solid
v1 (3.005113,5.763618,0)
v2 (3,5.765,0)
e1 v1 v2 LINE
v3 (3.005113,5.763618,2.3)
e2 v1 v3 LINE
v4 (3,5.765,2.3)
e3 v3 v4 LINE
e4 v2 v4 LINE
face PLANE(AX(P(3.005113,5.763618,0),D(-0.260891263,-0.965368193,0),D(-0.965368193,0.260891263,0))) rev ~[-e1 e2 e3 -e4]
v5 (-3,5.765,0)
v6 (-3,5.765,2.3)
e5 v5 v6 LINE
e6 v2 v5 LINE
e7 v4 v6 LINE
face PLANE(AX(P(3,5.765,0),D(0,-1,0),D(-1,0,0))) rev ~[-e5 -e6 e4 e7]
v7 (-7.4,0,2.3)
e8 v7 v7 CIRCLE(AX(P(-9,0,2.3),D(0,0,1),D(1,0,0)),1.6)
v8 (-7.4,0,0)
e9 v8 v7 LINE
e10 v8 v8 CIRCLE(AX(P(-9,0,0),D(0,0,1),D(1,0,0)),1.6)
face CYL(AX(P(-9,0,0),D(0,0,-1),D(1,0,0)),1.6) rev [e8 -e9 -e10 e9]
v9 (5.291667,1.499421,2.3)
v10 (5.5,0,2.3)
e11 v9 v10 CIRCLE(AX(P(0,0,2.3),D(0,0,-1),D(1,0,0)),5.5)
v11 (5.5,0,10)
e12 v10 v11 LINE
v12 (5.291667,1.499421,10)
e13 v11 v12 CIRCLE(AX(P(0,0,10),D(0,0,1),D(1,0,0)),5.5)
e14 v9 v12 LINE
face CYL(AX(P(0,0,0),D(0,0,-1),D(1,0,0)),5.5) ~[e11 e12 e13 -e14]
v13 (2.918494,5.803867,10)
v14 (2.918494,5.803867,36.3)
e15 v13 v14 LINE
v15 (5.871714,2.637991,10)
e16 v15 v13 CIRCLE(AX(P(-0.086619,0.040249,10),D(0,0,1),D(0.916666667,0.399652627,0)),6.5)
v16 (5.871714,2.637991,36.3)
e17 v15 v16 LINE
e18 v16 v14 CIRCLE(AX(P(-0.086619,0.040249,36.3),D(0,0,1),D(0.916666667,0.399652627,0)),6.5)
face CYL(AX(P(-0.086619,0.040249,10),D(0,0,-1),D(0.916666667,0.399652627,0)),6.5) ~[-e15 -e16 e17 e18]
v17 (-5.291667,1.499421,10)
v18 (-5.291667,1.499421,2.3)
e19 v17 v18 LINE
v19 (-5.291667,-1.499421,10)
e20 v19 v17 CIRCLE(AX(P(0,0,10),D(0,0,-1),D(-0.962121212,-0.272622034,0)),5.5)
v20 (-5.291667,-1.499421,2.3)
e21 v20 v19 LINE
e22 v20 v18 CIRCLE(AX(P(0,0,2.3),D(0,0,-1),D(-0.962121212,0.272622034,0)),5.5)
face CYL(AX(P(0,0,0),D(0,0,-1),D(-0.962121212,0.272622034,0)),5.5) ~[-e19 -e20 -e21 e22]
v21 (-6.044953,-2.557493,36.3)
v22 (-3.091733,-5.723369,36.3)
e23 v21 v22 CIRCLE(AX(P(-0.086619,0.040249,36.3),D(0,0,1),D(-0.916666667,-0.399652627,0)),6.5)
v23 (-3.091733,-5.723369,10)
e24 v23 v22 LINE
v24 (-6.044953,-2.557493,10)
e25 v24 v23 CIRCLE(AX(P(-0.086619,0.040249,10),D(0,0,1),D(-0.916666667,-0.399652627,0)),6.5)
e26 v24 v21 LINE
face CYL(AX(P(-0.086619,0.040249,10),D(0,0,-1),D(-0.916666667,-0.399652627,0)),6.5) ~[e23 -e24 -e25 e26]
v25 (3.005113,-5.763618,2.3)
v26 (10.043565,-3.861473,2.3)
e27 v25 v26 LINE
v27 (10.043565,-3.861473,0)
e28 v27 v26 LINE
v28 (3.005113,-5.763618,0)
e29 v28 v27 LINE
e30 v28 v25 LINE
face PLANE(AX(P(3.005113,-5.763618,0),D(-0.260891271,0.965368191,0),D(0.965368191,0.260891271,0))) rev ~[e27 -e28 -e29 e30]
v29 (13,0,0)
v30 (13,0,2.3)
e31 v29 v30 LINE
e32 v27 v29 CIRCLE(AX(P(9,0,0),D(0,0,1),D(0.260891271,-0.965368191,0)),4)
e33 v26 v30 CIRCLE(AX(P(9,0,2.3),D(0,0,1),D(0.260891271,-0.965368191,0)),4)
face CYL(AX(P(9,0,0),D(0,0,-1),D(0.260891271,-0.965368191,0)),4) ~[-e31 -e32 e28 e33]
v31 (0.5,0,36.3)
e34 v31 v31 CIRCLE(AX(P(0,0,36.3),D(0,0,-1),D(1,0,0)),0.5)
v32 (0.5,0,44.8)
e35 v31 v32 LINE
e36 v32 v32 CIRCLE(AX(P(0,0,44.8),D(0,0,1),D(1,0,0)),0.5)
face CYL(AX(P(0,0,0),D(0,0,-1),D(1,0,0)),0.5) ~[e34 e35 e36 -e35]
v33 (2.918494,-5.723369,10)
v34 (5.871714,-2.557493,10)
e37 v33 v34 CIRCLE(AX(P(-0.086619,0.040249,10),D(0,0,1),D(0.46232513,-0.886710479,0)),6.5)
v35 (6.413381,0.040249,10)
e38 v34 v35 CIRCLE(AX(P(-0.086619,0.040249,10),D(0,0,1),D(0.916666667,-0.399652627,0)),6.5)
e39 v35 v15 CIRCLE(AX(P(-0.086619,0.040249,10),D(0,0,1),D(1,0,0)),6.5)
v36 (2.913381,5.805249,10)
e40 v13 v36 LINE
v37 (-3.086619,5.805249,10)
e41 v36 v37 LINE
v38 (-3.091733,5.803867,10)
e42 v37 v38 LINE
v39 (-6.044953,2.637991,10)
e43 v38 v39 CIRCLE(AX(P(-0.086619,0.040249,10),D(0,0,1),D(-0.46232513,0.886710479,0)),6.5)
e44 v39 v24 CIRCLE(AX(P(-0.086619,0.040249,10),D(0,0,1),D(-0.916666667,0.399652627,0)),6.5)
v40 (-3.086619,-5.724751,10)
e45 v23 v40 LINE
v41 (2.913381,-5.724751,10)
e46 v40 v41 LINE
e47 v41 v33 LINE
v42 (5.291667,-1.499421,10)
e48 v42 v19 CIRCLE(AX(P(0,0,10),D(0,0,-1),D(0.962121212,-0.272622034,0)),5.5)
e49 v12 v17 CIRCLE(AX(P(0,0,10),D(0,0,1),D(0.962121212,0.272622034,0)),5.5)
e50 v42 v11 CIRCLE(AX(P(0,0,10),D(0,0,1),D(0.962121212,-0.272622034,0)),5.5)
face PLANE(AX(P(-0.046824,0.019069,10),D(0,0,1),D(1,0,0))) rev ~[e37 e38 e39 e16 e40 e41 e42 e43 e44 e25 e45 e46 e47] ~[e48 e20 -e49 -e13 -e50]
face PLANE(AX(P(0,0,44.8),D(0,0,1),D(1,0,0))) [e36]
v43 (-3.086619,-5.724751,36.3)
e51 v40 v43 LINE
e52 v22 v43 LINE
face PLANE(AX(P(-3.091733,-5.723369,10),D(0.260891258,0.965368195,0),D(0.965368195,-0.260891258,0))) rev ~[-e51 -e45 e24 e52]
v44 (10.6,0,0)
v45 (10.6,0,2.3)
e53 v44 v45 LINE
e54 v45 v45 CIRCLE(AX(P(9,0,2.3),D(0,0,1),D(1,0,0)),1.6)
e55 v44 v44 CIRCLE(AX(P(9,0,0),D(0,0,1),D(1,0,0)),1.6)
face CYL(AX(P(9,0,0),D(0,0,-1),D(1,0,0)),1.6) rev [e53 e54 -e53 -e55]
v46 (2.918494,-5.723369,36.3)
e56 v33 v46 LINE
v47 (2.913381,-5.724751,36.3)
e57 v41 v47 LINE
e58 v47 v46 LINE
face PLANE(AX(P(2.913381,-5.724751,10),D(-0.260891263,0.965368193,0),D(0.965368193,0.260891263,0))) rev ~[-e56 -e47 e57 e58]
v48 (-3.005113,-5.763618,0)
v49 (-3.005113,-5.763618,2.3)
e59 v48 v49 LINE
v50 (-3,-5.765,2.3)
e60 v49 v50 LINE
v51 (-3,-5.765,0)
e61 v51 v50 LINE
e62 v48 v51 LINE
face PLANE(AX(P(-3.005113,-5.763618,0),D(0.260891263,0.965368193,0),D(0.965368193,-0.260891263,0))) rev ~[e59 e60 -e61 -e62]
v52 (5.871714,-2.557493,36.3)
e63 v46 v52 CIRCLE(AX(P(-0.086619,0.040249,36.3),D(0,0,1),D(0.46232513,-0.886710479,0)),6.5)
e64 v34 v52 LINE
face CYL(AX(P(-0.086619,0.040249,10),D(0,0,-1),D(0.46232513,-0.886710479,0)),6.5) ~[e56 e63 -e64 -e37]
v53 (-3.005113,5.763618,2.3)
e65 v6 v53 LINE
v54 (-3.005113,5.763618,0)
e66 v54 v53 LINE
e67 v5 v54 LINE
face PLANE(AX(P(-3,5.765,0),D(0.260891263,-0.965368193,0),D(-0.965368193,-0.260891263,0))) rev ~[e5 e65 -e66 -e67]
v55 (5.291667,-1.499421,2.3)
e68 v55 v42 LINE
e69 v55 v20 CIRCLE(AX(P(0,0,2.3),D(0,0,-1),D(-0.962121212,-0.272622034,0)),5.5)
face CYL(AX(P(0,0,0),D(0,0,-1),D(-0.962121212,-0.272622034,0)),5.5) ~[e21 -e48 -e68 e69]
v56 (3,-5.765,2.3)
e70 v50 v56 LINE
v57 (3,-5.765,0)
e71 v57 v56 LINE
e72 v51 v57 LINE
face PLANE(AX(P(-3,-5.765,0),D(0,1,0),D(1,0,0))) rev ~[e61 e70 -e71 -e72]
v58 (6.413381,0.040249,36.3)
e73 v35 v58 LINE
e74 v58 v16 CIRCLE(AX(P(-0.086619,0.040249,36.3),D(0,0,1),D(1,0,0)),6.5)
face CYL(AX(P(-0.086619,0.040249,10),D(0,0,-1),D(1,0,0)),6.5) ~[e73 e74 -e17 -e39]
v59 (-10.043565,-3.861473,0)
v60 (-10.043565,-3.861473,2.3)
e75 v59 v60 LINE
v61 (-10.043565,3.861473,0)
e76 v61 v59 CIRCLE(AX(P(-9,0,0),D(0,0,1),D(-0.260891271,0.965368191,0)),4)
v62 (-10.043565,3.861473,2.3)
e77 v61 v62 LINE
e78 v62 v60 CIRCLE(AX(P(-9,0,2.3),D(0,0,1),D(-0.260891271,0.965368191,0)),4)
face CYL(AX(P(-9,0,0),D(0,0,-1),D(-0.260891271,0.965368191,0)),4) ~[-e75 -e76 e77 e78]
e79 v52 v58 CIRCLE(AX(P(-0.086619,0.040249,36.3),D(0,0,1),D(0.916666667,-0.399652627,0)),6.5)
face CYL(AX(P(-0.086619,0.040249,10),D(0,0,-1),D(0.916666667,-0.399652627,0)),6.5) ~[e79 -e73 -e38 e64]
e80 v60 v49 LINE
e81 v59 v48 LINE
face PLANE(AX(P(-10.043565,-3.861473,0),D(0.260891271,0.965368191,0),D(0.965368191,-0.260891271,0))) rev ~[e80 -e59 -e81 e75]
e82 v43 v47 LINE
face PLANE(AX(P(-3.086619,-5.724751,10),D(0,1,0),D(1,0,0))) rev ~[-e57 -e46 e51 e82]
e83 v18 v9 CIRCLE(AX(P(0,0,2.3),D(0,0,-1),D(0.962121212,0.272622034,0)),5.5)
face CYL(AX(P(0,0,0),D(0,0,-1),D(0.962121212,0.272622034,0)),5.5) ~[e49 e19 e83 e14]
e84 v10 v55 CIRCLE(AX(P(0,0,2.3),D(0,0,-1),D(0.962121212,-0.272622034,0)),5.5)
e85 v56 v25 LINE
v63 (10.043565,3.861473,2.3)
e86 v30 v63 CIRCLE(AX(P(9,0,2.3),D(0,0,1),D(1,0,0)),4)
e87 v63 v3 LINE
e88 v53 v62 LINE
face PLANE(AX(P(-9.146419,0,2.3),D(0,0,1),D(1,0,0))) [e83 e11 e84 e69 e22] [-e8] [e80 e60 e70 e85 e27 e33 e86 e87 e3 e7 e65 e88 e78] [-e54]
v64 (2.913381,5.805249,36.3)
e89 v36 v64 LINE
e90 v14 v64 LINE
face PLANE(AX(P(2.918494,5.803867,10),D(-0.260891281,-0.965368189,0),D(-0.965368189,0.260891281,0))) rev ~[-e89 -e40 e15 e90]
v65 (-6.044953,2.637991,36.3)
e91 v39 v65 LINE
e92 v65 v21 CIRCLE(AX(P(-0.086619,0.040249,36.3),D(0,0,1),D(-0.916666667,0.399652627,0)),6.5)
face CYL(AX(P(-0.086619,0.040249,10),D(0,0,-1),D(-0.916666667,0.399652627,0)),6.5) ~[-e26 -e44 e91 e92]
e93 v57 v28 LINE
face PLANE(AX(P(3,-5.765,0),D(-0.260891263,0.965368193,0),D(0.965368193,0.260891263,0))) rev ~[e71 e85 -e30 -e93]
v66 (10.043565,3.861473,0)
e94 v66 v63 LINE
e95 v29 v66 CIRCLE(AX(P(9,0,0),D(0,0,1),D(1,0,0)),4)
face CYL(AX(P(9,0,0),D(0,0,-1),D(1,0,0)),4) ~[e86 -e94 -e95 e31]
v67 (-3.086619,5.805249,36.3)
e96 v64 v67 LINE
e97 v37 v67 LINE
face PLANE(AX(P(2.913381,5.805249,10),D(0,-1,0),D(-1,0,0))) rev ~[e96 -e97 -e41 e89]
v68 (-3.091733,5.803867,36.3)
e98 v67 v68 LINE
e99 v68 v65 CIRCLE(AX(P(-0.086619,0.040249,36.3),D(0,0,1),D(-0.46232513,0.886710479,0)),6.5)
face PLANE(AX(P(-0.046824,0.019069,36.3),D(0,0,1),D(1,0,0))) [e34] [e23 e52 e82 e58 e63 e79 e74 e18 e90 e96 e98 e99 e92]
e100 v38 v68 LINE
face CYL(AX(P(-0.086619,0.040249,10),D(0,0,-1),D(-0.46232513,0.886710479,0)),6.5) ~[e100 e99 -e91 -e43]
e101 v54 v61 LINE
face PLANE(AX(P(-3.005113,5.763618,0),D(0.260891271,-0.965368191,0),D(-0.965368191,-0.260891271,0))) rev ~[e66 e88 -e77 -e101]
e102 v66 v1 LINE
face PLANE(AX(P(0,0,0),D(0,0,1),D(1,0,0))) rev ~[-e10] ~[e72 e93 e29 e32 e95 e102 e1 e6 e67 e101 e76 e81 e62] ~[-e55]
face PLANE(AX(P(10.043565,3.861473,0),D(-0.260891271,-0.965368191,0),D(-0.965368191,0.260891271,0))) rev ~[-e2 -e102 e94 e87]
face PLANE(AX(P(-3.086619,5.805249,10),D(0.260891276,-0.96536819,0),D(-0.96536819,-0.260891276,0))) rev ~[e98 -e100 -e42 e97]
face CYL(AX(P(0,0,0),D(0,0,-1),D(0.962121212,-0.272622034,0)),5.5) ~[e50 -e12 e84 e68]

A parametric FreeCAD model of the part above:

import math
import FreeCAD as App
import Part
import Sketcher

V = App.Vector
Q = App.Units.Quantity

doc = App.newDocument("Part")
body = doc.addObject("PartDesign::Body", "Body")

# Sketch on XY plane
sketch1 = body.newObject("Sketcher::SketchObject", "Sketch")
sketch1.AttachmentSupport = (doc.getObject("XY_Plane"), [""])
sketch1.MapMode = "FlatFace"
sketch1.addGeometry([
    Part.LineSegment(V(-3.005, 5.764, 0), V(-10.044, 3.861, 0)),  # 0
    Part.ArcOfCircle(Part.Circle(V(-9, 0, 0), V(0, 0, 1), 4), math.radians(105), math.radians(255)),  # 1
    Part.LineSegment(V(-10.044, -3.861, 0), V(-3.005, -5.764, 0)),  # 2
    Part.LineSegment(V(-3.005, -5.764, 0), V(-3, -5.765, 0)),  # 3
    Part.LineSegment(V(-3, -5.765, 0), V(3, -5.765, 0)),  # 4
    Part.LineSegment(V(3, -5.765, 0), V(3.005, -5.764, 0)),  # 5
    Part.LineSegment(V(3.005, -5.764, 0), V(10.044, -3.861, 0)),  # 6
    Part.ArcOfCircle(Part.Circle(V(9, 0, 0), V(0, 0, 1), 4), math.radians(-75), math.radians(0)),  # 7
    Part.ArcOfCircle(Part.Circle(V(9, 0, 0), V(0, 0, 1), 4), math.radians(0), math.radians(75)),  # 8
    Part.LineSegment(V(10.044, 3.861, 0), V(3.005, 5.764, 0)),  # 9
    Part.LineSegment(V(3.005, 5.764, 0), V(3, 5.765, 0)),  # 10
    Part.LineSegment(V(3, 5.765, 0), V(-3, 5.765, 0)),  # 11
    Part.LineSegment(V(-3, 5.765, 0), V(-3.005, 5.764, 0)),  # 12
    Part.Circle(V(-9, 0, 0), V(0, 0, 1), 1.6),  # 13
    Part.Circle(V(0, 0, 0), V(0, 0, 1), 0.5),  # 14
    Part.Circle(V(9, 0, 0), V(0, 0, 1), 1.6),  # 15
], False)
sketch1.addConstraint([
    Sketcher.Constraint("Tangent", 0, 2, 1, 1),
    Sketcher.Constraint("Tangent", 1, 2, 2, 1),
    Sketcher.Constraint("Coincident", 2, 2, 3, 1),
    Sketcher.Constraint("Coincident", 3, 2, 4, 1),
    Sketcher.Constraint("Coincident", 4, 2, 5, 1),
    Sketcher.Constraint("Coincident", 5, 2, 6, 1),
    Sketcher.Constraint("Tangent", 6, 2, 7, 1),
    Sketcher.Constraint("Tangent", 7, 2, 8, 1),
    Sketcher.Constraint("Tangent", 8, 2, 9, 1),
    Sketcher.Constraint("Coincident", 9, 2, 10, 1),
    Sketcher.Constraint("Coincident", 10, 2, 11, 1),
    Sketcher.Constraint("Coincident", 11, 2, 12, 1),
    Sketcher.Constraint("Coincident", 12, 2, 0, 1),
    Sketcher.Constraint("Horizontal", 4),
    Sketcher.Constraint("Horizontal", 11),
    Sketcher.Constraint("Coincident", 14, 3, -1, 1),
    Sketcher.Constraint("Coincident", 13, 3, 1, 3),
    Sketcher.Constraint("Coincident", 15, 3, 7, 3),
    Sketcher.Constraint("Equal", 1, 7),
    Sketcher.Constraint("Equal", 7, 8),
    Sketcher.Constraint("Equal", 13, 15),
    Sketcher.Constraint("Symmetric", 1, 3, 7, 3, -1, 1),
    Sketcher.Constraint("Symmetric", 2, 2, 9, 2, -1, 1),
    Sketcher.Constraint("Symmetric", 3, 2, 10, 2, -1, 1),
    Sketcher.Constraint("Symmetric", 5, 2, 12, 2, -1, 1),
    Sketcher.Constraint("Symmetric", 2, 2, 5, 2, -2),
    Sketcher.Constraint("PointOnObject", 1, 3, -1),
    Sketcher.Constraint("PointOnObject", 7, 2, -1),
    Sketcher.Constraint("Parallel", 2, 3),
    Sketcher.Constraint("Parallel", 0, 5),
    Sketcher.Constraint("Parallel", 6, 12),
    Sketcher.Constraint("Diameter", 14, Q("1 mm")),
    Sketcher.Constraint("Radius", 1, Q("4 mm")),
    Sketcher.Constraint("Diameter", 13, Q("3.2 mm")),
    Sketcher.Constraint("DistanceX", 4, 1, 4, 2, Q("6 mm")),
    Sketcher.Constraint("DistanceX", 1, 3, -1, 1, Q("9 mm")),
    Sketcher.Constraint("DistanceY", 3, 2, -1, 1, Q("5.765 mm")),
    Sketcher.Constraint("Distance", 0, Q("7.290951 mm")),
])
pad1 = body.newObject("PartDesign::Pad", "Pad")
pad1.Profile = sketch1
pad1.Length = 2.3

# Sketch on XY plane
sketch2 = body.newObject("Sketcher::SketchObject", "Sketch001")
sketch2.AttachmentSupport = (doc.getObject("XY_Plane"), [""])
sketch2.MapMode = "FlatFace"
sketch2.addGeometry([
    Part.ArcOfCircle(Part.Circle(V(0, 0, 0), V(0, 0, 1), 5.5), math.radians(16), math.radians(164)),  # 0
    Part.ArcOfCircle(Part.Circle(V(0, 0, 0), V(0, 0, 1), 5.5), math.radians(164), math.radians(196)),  # 1
    Part.ArcOfCircle(Part.Circle(V(0, 0, 0), V(0, 0, 1), 5.5), math.radians(-164), math.radians(-16)),  # 2
    Part.ArcOfCircle(Part.Circle(V(0, 0, 0), V(0, 0, 1), 5.5), math.radians(-15.82), math.radians(0)),  # 3
    Part.ArcOfCircle(Part.Circle(V(0, 0, 0), V(0, 0, 1), 5.5), math.radians(0), math.radians(15.82)),  # 4
], False)
sketch2.addConstraint([
    Sketcher.Constraint("Tangent", 0, 2, 1, 1),
    Sketcher.Constraint("Tangent", 1, 2, 2, 1),
    Sketcher.Constraint("Tangent", 2, 2, 3, 1),
    Sketcher.Constraint("Tangent", 3, 2, 4, 1),
    Sketcher.Constraint("Tangent", 4, 2, 0, 1),
    Sketcher.Constraint("Coincident", 0, 3, -1, 1),
    Sketcher.Constraint("Coincident", 2, 3, -1, 1),
    Sketcher.Constraint("PointOnObject", 3, 2, -1),
    Sketcher.Constraint("Horizontal", 1, 2, 2, 2),
    Sketcher.Constraint("Horizontal", 0, 2, 4, 2),
    Sketcher.Constraint("Vertical", 0, 2, 1, 2),
    Sketcher.Constraint("Radius", 0, Q("5.5 mm")),
    Sketcher.Constraint("DistanceY", -1, 1, 0, 2, Q("1.499421 mm")),
])
pad2 = body.newObject("PartDesign::Pad", "Pad001")
pad2.Profile = sketch2
pad2.Length = 10

# Sketch on XY plane
sketch3 = body.newObject("Sketcher::SketchObject", "Sketch002")
sketch3.AttachmentSupport = (doc.getObject("XY_Plane"), [""])
sketch3.MapMode = "FlatFace"
sketch3.AttachmentOffset = App.Placement(V(0, 0, 10), App.Rotation())
sketch3.addGeometry([
    Part.ArcOfCircle(Part.Circle(V(-0.087, 0.04, 0), V(0, 0, 1), 6.5), math.radians(24), math.radians(62)),  # 0
    Part.LineSegment(V(2.918, 5.804, 0), V(2.913, 5.805, 0)),  # 1
    Part.LineSegment(V(2.913, 5.805, 0), V(-3.087, 5.805, 0)),  # 2
    Part.LineSegment(V(-3.087, 5.805, 0), V(-3.092, 5.804, 0)),  # 3
    Part.ArcOfCircle(Part.Circle(V(-0.087, 0.04, 0), V(0, 0, 1), 6.5), math.radians(118), math.radians(156)),  # 4
    Part.ArcOfCircle(Part.Circle(V(-0.087, 0.04, 0), V(0, 0, 1), 6.5), math.radians(156), math.radians(204)),  # 5
    Part.ArcOfCircle(Part.Circle(V(-0.087, 0.04, 0), V(0, 0, 1), 6.5), math.radians(-156), math.radians(-118)),  # 6
    Part.LineSegment(V(-3.092, -5.723, 0), V(-3.087, -5.725, 0)),  # 7
    Part.LineSegment(V(-3.087, -5.725, 0), V(2.913, -5.725, 0)),  # 8
    Part.LineSegment(V(2.913, -5.725, 0), V(2.918, -5.723, 0)),  # 9
    Part.ArcOfCircle(Part.Circle(V(-0.087, 0.04, 0), V(0, 0, 1), 6.5), math.radians(-62), math.radians(-24)),  # 10
    Part.ArcOfCircle(Part.Circle(V(-0.087, 0.04, 0), V(0, 0, 1), 6.5), math.radians(-24), math.radians(0)),  # 11
    Part.ArcOfCircle(Part.Circle(V(-0.087, 0.04, 0), V(0, 0, 1), 6.5), math.radians(0), math.radians(24)),  # 12
], False)
sketch3.addConstraint([
    Sketcher.Constraint("Coincident", 0, 2, 1, 1),
    Sketcher.Constraint("Coincident", 1, 2, 2, 1),
    Sketcher.Constraint("Coincident", 2, 2, 3, 1),
    Sketcher.Constraint("Coincident", 3, 2, 4, 1),
    Sketcher.Constraint("Tangent", 4, 2, 5, 1),
    Sketcher.Constraint("Tangent", 5, 2, 6, 1),
    Sketcher.Constraint("Coincident", 6, 2, 7, 1),
    Sketcher.Constraint("Coincident", 7, 2, 8, 1),
    Sketcher.Constraint("Coincident", 8, 2, 9, 1),
    Sketcher.Constraint("Coincident", 9, 2, 10, 1),
    Sketcher.Constraint("Tangent", 10, 2, 11, 1),
    Sketcher.Constraint("Tangent", 11, 2, 12, 1),
    Sketcher.Constraint("Tangent", 12, 2, 0, 1),
    Sketcher.Constraint("Horizontal", 2),
    Sketcher.Constraint("Horizontal", 8),
    Sketcher.Constraint("Coincident", 4, 3, 0, 3),
    Sketcher.Constraint("Coincident", 6, 3, 0, 3),
    Sketcher.Constraint("Coincident", 10, 3, 0, 3),
    Sketcher.Constraint("Equal", 0, 4),
    Sketcher.Constraint("Equal", 6, 10),
    Sketcher.Constraint("Parallel", 1, 7),
    Sketcher.Constraint("Parallel", 3, 9),
    Sketcher.Constraint("Horizontal", 0, 2, 3, 2),
    Sketcher.Constraint("Horizontal", 6, 2, 9, 2),
    Sketcher.Constraint("Horizontal", 5, 2, 10, 2),
    Sketcher.Constraint("Horizontal", 12, 3, 11, 2),
    Sketcher.Constraint("Horizontal", 4, 2, 12, 2),
    Sketcher.Constraint("Vertical", 4, 2, 5, 2),
    Sketcher.Constraint("Vertical", 3, 2, 6, 2),
    Sketcher.Constraint("Vertical", 2, 2, 7, 2),
    Sketcher.Constraint("Vertical", 1, 2, 8, 2),
    Sketcher.Constraint("Radius", 0, Q("6.5 mm")),
    Sketcher.Constraint("DistanceX", 2, 2, 2, 1, Q("6 mm")),
    Sketcher.Constraint("DistanceY", 5, 3, 1, 2, Q("5.765 mm")),
    Sketcher.Constraint("DistanceX", 0, 3, -1, 1, Q("0.086619 mm")),
    Sketcher.Constraint("DistanceY", -1, 1, 0, 3, Q("0.040249 mm")),
    Sketcher.Constraint("DistanceY", -1, 1, 4, 2, Q("2.637991 mm")),
    Sketcher.Constraint("DistanceY", 6, 2, -1, 1, Q("5.723369 mm")),
])
pad3 = body.newObject("PartDesign::Pad", "Pad002")
pad3.Profile = sketch3
pad3.Length = 26.3

# Sketch on XY plane
sketch4 = body.newObject("Sketcher::SketchObject", "Sketch003")
sketch4.AttachmentSupport = (doc.getObject("XY_Plane"), [""])
sketch4.MapMode = "FlatFace"
sketch4.addGeometry(Part.Circle(V(0, 0, 0), V(0, 0, 1), 0.5), False)
sketch4.addConstraint([
    Sketcher.Constraint("Coincident", 0, 3, -1, 1),
    Sketcher.Constraint("Diameter", 0, Q("1 mm")),
])
pad4 = body.newObject("PartDesign::Pad", "Pad003")
pad4.Profile = sketch4
pad4.Length = 44.8

# Sketch on XY plane
sketch5 = body.newObject("Sketcher::SketchObject", "Sketch004")
sketch5.AttachmentSupport = (doc.getObject("XY_Plane"), [""])
sketch5.MapMode = "FlatFace"
sketch5.AttachmentOffset = App.Placement(V(0, 0, 10), App.Rotation())
sketch5.addGeometry([
    Part.ArcOfCircle(Part.Circle(V(-0.1, 0, 0), V(0, 0, 1), 5.5), math.radians(-114), math.radians(-16)),  # 0
    Part.ArcOfCircle(Part.Circle(V(8.9, 0, 0), V(0, 0, 1), 4), math.radians(158), math.radians(202)),  # 1
    Part.ArcOfCircle(Part.Circle(V(-0.1, 0, 0), V(0, 0, 1), 5.5), math.radians(16), math.radians(65)),  # 2
    Part.ArcOfCircle(Part.Circle(V(0, 0, 0), V(0, 0, 1), 5.5), math.radians(66), math.radians(165)),  # 3
    Part.ArcOfCircle(Part.Circle(V(-9.1, 0, 0), V(0, 0, 1), 4), math.radians(0), math.radians(19.73)),  # 4
    Part.ArcOfCircle(Part.Circle(V(-9.1, 0, 0), V(0, 0, 1), 4), math.radians(-20), math.radians(0)),  # 5
    Part.ArcOfCircle(Part.Circle(V(0, 0, 0), V(0, 0, 1), 5.5), math.radians(-166), math.radians(-115)),  # 6
    Part.Circle(V(-0.1, 0, 0), V(0, 0, 1), 0.5),  # 7
], False)
sketch5.addConstraint([
    Sketcher.Constraint("Coincident", 0, 2, 1, 2),
    Sketcher.Constraint("Coincident", 1, 1, 2, 1),
    Sketcher.Constraint("Coincident", 2, 2, 3, 1),
    Sketcher.Constraint("Coincident", 3, 2, 4, 2),
    Sketcher.Constraint("Tangent", 4, 1, 5, 2),
    Sketcher.Constraint("Coincident", 5, 1, 6, 1),
    Sketcher.Constraint("Coincident", 6, 2, 0, 1),
    Sketcher.Constraint("Coincident", 3, 3, -1, 1),
    Sketcher.Constraint("Coincident", 6, 3, -1, 1),
    Sketcher.Constraint("Coincident", 2, 3, 0, 3),
    Sketcher.Constraint("Coincident", 7, 3, 0, 3),
    Sketcher.Constraint("Equal", 0, 2),
    Sketcher.Constraint("Equal", 2, 3),
    Sketcher.Constraint("Equal", 1, 4),
    Sketcher.Constraint("Equal", 4, 5),
    Sketcher.Constraint("Equal", 3, 6),
    Sketcher.Constraint("Horizontal", 0, 3, 1, 3),
    Sketcher.Constraint("Horizontal", 2, 3, 4, 3),
    Sketcher.Constraint("Horizontal", 7, 3, 4, 1),
    Sketcher.Constraint("Diameter", 7, Q("1 mm")),
    Sketcher.Constraint("Radius", 1, Q("4 mm")),
    Sketcher.Constraint("Radius", 0, Q("5.5 mm")),
    Sketcher.Constraint("DistanceX", 0, 3, 1, 3, Q("9 mm")),
    Sketcher.Constraint("DistanceX", 4, 3, 0, 3, Q("9 mm")),
    Sketcher.Constraint("DistanceX", 0, 3, -1, 1, Q("0.086619 mm")),
    Sketcher.Constraint("DistanceY", -1, 1, 0, 3, Q("0.040249 mm")),
])
pad5 = body.newObject("PartDesign::Pad", "Pad004")
pad5.Profile = sketch5
pad5.Length = 5
pad5.Midplane = True

doc.recompute()
